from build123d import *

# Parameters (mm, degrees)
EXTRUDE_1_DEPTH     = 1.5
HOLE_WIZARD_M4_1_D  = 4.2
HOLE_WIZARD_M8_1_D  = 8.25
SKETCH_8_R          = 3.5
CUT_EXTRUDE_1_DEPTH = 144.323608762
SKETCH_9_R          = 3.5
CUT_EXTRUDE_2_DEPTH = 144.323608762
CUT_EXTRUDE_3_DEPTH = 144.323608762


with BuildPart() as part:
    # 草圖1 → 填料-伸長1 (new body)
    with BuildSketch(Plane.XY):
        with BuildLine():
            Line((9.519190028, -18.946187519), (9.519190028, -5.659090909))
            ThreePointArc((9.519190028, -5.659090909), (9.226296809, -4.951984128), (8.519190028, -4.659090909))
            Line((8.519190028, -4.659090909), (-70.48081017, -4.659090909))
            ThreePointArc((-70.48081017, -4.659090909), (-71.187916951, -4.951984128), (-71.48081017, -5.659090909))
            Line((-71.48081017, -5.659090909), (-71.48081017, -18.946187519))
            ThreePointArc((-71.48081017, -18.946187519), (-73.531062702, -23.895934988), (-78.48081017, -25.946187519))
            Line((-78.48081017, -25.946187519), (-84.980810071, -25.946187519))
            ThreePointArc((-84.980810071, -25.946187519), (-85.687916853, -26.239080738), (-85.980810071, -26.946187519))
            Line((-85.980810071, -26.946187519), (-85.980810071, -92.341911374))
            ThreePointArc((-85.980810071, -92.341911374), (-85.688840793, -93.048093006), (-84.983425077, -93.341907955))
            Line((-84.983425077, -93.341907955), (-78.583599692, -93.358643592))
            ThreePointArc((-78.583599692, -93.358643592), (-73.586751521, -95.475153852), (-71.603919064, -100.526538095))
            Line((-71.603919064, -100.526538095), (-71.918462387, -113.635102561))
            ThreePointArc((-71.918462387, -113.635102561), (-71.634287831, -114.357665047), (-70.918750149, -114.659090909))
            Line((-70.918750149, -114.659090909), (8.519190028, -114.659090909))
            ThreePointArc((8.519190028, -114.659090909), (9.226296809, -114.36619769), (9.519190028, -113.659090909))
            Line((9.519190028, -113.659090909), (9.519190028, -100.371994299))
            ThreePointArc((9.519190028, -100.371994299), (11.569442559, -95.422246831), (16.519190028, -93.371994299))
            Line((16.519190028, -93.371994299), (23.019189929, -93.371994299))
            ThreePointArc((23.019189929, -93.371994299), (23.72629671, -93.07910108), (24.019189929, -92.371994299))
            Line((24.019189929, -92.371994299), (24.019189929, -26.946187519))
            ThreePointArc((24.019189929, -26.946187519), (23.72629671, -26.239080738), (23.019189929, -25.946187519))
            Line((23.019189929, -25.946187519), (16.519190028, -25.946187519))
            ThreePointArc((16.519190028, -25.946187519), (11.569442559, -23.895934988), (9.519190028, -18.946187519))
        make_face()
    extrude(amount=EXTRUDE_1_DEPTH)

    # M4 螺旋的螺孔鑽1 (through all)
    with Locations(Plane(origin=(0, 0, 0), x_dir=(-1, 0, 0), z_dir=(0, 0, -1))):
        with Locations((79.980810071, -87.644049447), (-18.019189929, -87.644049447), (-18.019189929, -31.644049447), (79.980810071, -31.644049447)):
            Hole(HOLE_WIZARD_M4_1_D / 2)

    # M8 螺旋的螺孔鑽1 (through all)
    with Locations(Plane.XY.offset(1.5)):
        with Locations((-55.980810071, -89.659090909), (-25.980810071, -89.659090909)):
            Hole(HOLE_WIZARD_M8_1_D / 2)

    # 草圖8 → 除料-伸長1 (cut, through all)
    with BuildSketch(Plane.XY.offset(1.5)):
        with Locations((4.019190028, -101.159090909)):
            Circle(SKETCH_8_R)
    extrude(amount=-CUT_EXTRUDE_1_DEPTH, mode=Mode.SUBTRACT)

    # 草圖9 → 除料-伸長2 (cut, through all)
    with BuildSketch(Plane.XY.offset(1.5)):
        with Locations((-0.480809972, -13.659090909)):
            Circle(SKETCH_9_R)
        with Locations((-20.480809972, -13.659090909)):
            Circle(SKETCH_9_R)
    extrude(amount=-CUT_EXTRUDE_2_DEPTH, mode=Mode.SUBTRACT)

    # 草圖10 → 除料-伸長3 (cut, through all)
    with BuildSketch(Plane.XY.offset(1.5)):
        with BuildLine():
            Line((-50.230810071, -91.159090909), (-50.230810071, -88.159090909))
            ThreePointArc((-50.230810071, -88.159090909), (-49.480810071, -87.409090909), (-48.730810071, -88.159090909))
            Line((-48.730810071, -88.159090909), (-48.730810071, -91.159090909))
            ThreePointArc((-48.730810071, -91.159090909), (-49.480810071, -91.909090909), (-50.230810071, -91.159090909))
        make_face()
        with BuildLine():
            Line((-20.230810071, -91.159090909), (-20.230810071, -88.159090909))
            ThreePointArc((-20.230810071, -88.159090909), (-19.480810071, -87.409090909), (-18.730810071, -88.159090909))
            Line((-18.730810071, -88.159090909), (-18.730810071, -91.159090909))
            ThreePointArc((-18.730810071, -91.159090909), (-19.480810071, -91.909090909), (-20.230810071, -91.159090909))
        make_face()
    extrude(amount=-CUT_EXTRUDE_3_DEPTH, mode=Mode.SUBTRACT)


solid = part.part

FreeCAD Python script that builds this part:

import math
import FreeCAD as App
import Part
import Sketcher
Q = App.Units.Quantity

doc = App.newDocument("Part")
body = doc.addObject("PartDesign::Body", "Body")

sketch1 = body.newObject("Sketcher::SketchObject", "Sketch")
sketch1.AttachmentSupport = (doc.getObject("XY_Plane"), [""])
sketch1.MapMode = "FlatFace"
sketch1.addGeometry([
    Part.LineSegment(App.Vector(9.51919, -18.946188, 0), App.Vector(9.51919, -5.659091, 0)),
    Part.ArcOfCircle(Part.Circle(App.Vector(8.51919, -5.659091, 0), App.Vector(0, 0, 1), 1), math.radians(0), math.radians(90)),
    Part.LineSegment(App.Vector(8.51919, -4.659091, 0), App.Vector(-70.48081, -4.659091, 0)),
    Part.ArcOfCircle(Part.Circle(App.Vector(-70.48081, -5.659091, 0), App.Vector(0, 0, 1), 1), math.radians(90), math.radians(180)),
    Part.LineSegment(App.Vector(-71.48081, -5.659091, 0), App.Vector(-71.48081, -18.946188, 0)),
    Part.ArcOfCircle(Part.Circle(App.Vector(-78.48081, -18.946188, 0), App.Vector(0, 0, 1), 7), math.radians(-90), math.radians(0)),
    Part.LineSegment(App.Vector(-78.48081, -25.946188, 0), App.Vector(-84.98081, -25.946188, 0)),
    Part.ArcOfCircle(Part.Circle(App.Vector(-84.98081, -26.946188, 0), App.Vector(0, 0, 1), 1), math.radians(90), math.radians(180)),
    Part.LineSegment(App.Vector(-85.98081, -26.946188, 0), App.Vector(-85.98081, -92.341911, 0)),
    Part.ArcOfCircle(Part.Circle(App.Vector(-84.98081, -92.341911, 0), App.Vector(0, 0, 1), 1), math.radians(180), math.radians(269.850171)),
    Part.LineSegment(App.Vector(-84.983425, -93.341908, 0), App.Vector(-78.5836, -93.358644, 0)),
    Part.ArcOfCircle(Part.Circle(App.Vector(-78.601905, -100.35862, 0), App.Vector(0, 0, 1), 7), math.radians(-1.374563), math.radians(89.850171)),
    Part.LineSegment(App.Vector(-71.603919, -100.526538, 0), App.Vector(-71.918462, -113.635103, 0)),
    Part.ArcOfCircle(Part.Circle(App.Vector(-70.91875, -113.659091, 0), App.Vector(0, 0, 1), 1), math.radians(178.625437), math.radians(270)),
    Part.LineSegment(App.Vector(-70.91875, -114.659091, 0), App.Vector(8.51919, -114.659091, 0)),
    Part.ArcOfCircle(Part.Circle(App.Vector(8.51919, -113.659091, 0), App.Vector(0, 0, 1), 1), math.radians(-90), math.radians(0)),
    Part.LineSegment(App.Vector(9.51919, -113.659091, 0), App.Vector(9.51919, -100.371994, 0)),
    Part.ArcOfCircle(Part.Circle(App.Vector(16.51919, -100.371994, 0), App.Vector(0, 0, 1), 7), math.radians(90), math.radians(180)),
    Part.LineSegment(App.Vector(16.51919, -93.371994, 0), App.Vector(23.01919, -93.371994, 0)),
    Part.ArcOfCircle(Part.Circle(App.Vector(23.01919, -92.371994, 0), App.Vector(0, 0, 1), 1), math.radians(-90), math.radians(0)),
    Part.LineSegment(App.Vector(24.01919, -92.371994, 0), App.Vector(24.01919, -26.946188, 0)),
    Part.ArcOfCircle(Part.Circle(App.Vector(23.01919, -26.946188, 0), App.Vector(0, 0, 1), 1), math.radians(0), math.radians(90)),
    Part.LineSegment(App.Vector(23.01919, -25.946188, 0), App.Vector(16.51919, -25.946188, 0)),
    Part.ArcOfCircle(Part.Circle(App.Vector(16.51919, -18.946188, 0), App.Vector(0, 0, 1), 7), math.radians(180), math.radians(270)),
], False)
sketch1.addConstraint([
    Sketcher.Constraint("Tangent", 0, 2, 1, 1),
    Sketcher.Constraint("Tangent", 1, 2, 2, 1),
    Sketcher.Constraint("Tangent", 2, 2, 3, 1),
    Sketcher.Constraint("Tangent", 3, 2, 4, 1),
    Sketcher.Constraint("Tangent", 4, 2, 5, 2),
    Sketcher.Constraint("Tangent", 5, 1, 6, 1),
    Sketcher.Constraint("Tangent", 6, 2, 7, 1),
    Sketcher.Constraint("Tangent", 7, 2, 8, 1),
    Sketcher.Constraint("Tangent", 8, 2, 9, 1),
    Sketcher.Constraint("Tangent", 9, 2, 10, 1),
    Sketcher.Constraint("Tangent", 10, 2, 11, 2),
    Sketcher.Constraint("Tangent", 11, 1, 12, 1),
    Sketcher.Constraint("Tangent", 12, 2, 13, 1),
    Sketcher.Constraint("Tangent", 13, 2, 14, 1),
    Sketcher.Constraint("Tangent", 14, 2, 15, 1),
    Sketcher.Constraint("Tangent", 15, 2, 16, 1),
    Sketcher.Constraint("Tangent", 16, 2, 17, 2),
    Sketcher.Constraint("Tangent", 17, 1, 18, 1),
    Sketcher.Constraint("Tangent", 18, 2, 19, 1),
    Sketcher.Constraint("Tangent", 19, 2, 20, 1),
    Sketcher.Constraint("Tangent", 20, 2, 21, 1),
    Sketcher.Constraint("Tangent", 21, 2, 22, 1),
    Sketcher.Constraint("Tangent", 22, 2, 23, 2),
    Sketcher.Constraint("Tangent", 23, 1, 0, 1),
    Sketcher.Constraint("Vertical", 0),
    Sketcher.Constraint("Horizontal", 2),
    Sketcher.Constraint("Vertical", 4),
    Sketcher.Constraint("Horizontal", 6),
    Sketcher.Constraint("Vertical", 8),
    Sketcher.Constraint("Horizontal", 14),
    Sketcher.Constraint("Vertical", 16),
    Sketcher.Constraint("Horizontal", 18),
    Sketcher.Constraint("Vertical", 20),
    Sketcher.Constraint("Horizontal", 22),
    Sketcher.Constraint("Equal", 1, 3),
    Sketcher.Constraint("Equal", 3, 7),
    Sketcher.Constraint("Equal", 7, 9),
    Sketcher.Constraint("Equal", 5, 11),
    Sketcher.Constraint("Equal", 9, 13),
    Sketcher.Constraint("Equal", 13, 15),
    Sketcher.Constraint("Equal", 11, 17),
    Sketcher.Constraint("Equal", 15, 19),
    Sketcher.Constraint("Equal", 19, 21),
    Sketcher.Constraint("Equal", 17, 23),
    Sketcher.Constraint("Horizontal", 7, 3, 21, 3),
    Sketcher.Constraint("Vertical", 1, 3, 15, 3),
    Sketcher.Constraint("Equal", 6, 18),
    Sketcher.Constraint("Equal", 4, 16),
    Sketcher.Constraint("Radius", 1, Q("1 mm")),
    Sketcher.Constraint("Radius", 5, Q("7 mm")),
    Sketcher.Constraint("DistanceX", 2, 2, 2, 1, Q("79 mm")),
    Sketcher.Constraint("DistanceX", 6, 2, 6, 1, Q("6.5 mm")),
    Sketcher.Constraint("DistanceY", 13, 3, 3, 3, Q("108 mm")),
    Sketcher.Constraint("DistanceX", 14, 1, 14, 2, Q("79.43794 mm")),
    Sketcher.Constraint("DistanceX", 10, 2, -1, 1, Q("78.5836 mm")),
    Sketcher.Constraint("DistanceY", 0, 1, 0, 2, Q("13.287097 mm")),
    Sketcher.Constraint("DistanceY", 8, 2, 8, 1, Q("65.395724 mm")),
    Sketcher.Constraint("DistanceX", -1, 1, 1, 3, Q("8.51919 mm")),
    Sketcher.Constraint("DistanceY", 1, 3, -1, 1, Q("5.659091 mm")),
    Sketcher.Constraint("DistanceY", 11, 3, -1, 1, Q("100.35862 mm")),
])
pad1 = body.newObject("PartDesign::Pad", "Pad")
pad1.Profile = sketch1
pad1.Length = 1.5

sketch2 = body.newObject("Sketcher::SketchObject", "Sketch001")
sketch2.AttachmentSupport = (doc.getObject("XY_Plane"), [""])
sketch2.MapMode = "FlatFace"
sketch2.addGeometry([
    Part.Circle(App.Vector(-79.98081, -87.644049, 0), App.Vector(0, 0, 1), 2.1),
    Part.Circle(App.Vector(18.01919, -87.644049, 0), App.Vector(0, 0, 1), 2.1),
    Part.Circle(App.Vector(18.01919, -31.644049, 0), App.Vector(0, 0, 1), 2.1),
    Part.Circle(App.Vector(-79.98081, -31.644049, 0), App.Vector(0, 0, 1), 2.1),
], False)
sketch2.addConstraint([
    Sketcher.Constraint("Equal", 0, 1),
    Sketcher.Constraint("Equal", 1, 2),
    Sketcher.Constraint("Equal", 2, 3),
    Sketcher.Constraint("Horizontal", 0, 3, 1, 3),
    Sketcher.Constraint("Horizontal", 2, 3, 3, 3),
    Sketcher.Constraint("Vertical", 1, 3, 2, 3),
    Sketcher.Constraint("Vertical", 0, 3, 3, 3),
    Sketcher.Constraint("Diameter", 0, Q("4.2 mm")),
    Sketcher.Constraint("DistanceX", 0, 3, 1, 3, Q("98 mm")),
    Sketcher.Constraint("DistanceY", 1, 3, 2, 3, Q("56 mm")),
    Sketcher.Constraint("DistanceX", 0, 3, -1, 1, Q("79.98081 mm")),
    Sketcher.Constraint("DistanceY", 0, 3, -1, 1, Q("87.644049 mm")),
])
doc.recompute()
hole = body.newObject("PartDesign::Hole", "Hole")
hole.Profile = sketch2
hole.ThreadType = "None"
hole.Diameter = 4.2
hole.DepthType = "ThroughAll"
hole.Reversed = True

sketch3 = body.newObject("Sketcher::SketchObject", "Sketch002")
sketch3.AttachmentSupport = (doc.getObject("XY_Plane"), [""])
sketch3.MapMode = "FlatFace"
sketch3.AttachmentOffset = App.Placement(App.Vector(0, 0, 1.5), App.Rotation())
sketch3.addGeometry([
    Part.Circle(App.Vector(-55.98081, -89.659091, 0), App.Vector(0, 0, 1), 4.125),
    Part.Circle(App.Vector(-25.98081, -89.659091, 0), App.Vector(0, 0, 1), 4.125),
], False)
sketch3.addConstraint([
    Sketcher.Constraint("Equal", 0, 1),
    Sketcher.Constraint("Horizontal", 0, 3, 1, 3),
    Sketcher.Constraint("Diameter", 0, Q("8.25 mm")),
    Sketcher.Constraint("DistanceX", 0, 3, 1, 3, Q("30 mm")),
    Sketcher.Constraint("DistanceX", 0, 3, -1, 1, Q("55.98081 mm")),
    Sketcher.Constraint("DistanceY", 0, 3, -1, 1, Q("89.659091 mm")),
])
doc.recompute()
hole2 = body.newObject("PartDesign::Hole", "Hole001")
hole2.Profile = sketch3
hole2.ThreadType = "None"
hole2.Diameter = 8.25
hole2.DepthType = "ThroughAll"

sketch4 = body.newObject("Sketcher::SketchObject", "Sketch003")
sketch4.AttachmentSupport = (doc.getObject("XY_Plane"), [""])
sketch4.MapMode = "FlatFace"
sketch4.AttachmentOffset = App.Placement(App.Vector(0, 0, 1.5), App.Rotation())
sketch4.addGeometry(Part.Circle(App.Vector(4.01919, -101.159091, 0), App.Vector(0, 0, 1), 3.5), False)
sketch4.addConstraint([
    Sketcher.Constraint("Diameter", 0, Q("7 mm")),
    Sketcher.Constraint("DistanceX", -1, 1, 0, 3, Q("4.01919 mm")),
    Sketcher.Constraint("DistanceY", 0, 3, -1, 1, Q("101.159091 mm")),
])
pocket1 = body.newObject("PartDesign::Pocket", "Pocket")
pocket1.Profile = sketch4
pocket1.Type = "ThroughAll"

sketch5 = body.newObject("Sketcher::SketchObject", "Sketch004")
sketch5.AttachmentSupport = (doc.getObject("XY_Plane"), [""])
sketch5.MapMode = "FlatFace"
sketch5.AttachmentOffset = App.Placement(App.Vector(0, 0, 1.5), App.Rotation())
sketch5.addGeometry([
    Part.Circle(App.Vector(-0.48081, -13.659091, 0), App.Vector(0, 0, 1), 3.5),
    Part.Circle(App.Vector(-20.48081, -13.659091, 0), App.Vector(0, 0, 1), 3.5),
], False)
sketch5.addConstraint([
    Sketcher.Constraint("Equal", 0, 1),
    Sketcher.Constraint("Horizontal", 0, 3, 1, 3),
    Sketcher.Constraint("Diameter", 0, Q("7 mm")),
    Sketcher.Constraint("DistanceX", 1, 3, 0, 3, Q("20 mm")),
    Sketcher.Constraint("DistanceX", 0, 3, -1, 1, Q("0.48081 mm")),
    Sketcher.Constraint("DistanceY", 0, 3, -1, 1, Q("13.659091 mm")),
])
pocket2 = body.newObject("PartDesign::Pocket", "Pocket001")
pocket2.Profile = sketch5
pocket2.Type = "ThroughAll"

sketch6 = body.newObject("Sketcher::SketchObject", "Sketch005")
sketch6.AttachmentSupport = (doc.getObject("XY_Plane"), [""])
sketch6.MapMode = "FlatFace"
sketch6.AttachmentOffset = App.Placement(App.Vector(0, 0, 1.5), App.Rotation())
sketch6.addGeometry([
    Part.LineSegment(App.Vector(-50.23081, -88.159091, 0), App.Vector(-50.23081, -91.159091, 0)),
    Part.ArcOfCircle(Part.Circle(App.Vector(-49.48081, -91.159091, 0), App.Vector(0, 0, 1), 0.75), math.radians(180), math.radians(360)),
    Part.LineSegment(App.Vector(-48.73081, -91.159091, 0), App.Vector(-48.73081, -88.159091, 0)),
    Part.ArcOfCircle(Part.Circle(App.Vector(-49.48081, -88.159091, 0), App.Vector(0, 0, 1), 0.75), math.radians(0), math.radians(180)),
    Part.LineSegment(App.Vector(-20.23081, -88.159091, 0), App.Vector(-20.23081, -91.159091, 0)),
    Part.ArcOfCircle(Part.Circle(App.Vector(-19.48081, -91.159091, 0), App.Vector(0, 0, 1), 0.75), math.radians(180), math.radians(360)),
    Part.LineSegment(App.Vector(-18.73081, -91.159091, 0), App.Vector(-18.73081, -88.159091, 0)),
    Part.ArcOfCircle(Part.Circle(App.Vector(-19.48081, -88.159091, 0), App.Vector(0, 0, 1), 0.75), math.radians(0), math.radians(180)),
], False)
sketch6.addConstraint([
    Sketcher.Constraint("Tangent", 0, 2, 1, 1),
    Sketcher.Constraint("Tangent", 1, 2, 2, 1),
    Sketcher.Constraint("Tangent", 2, 2, 3, 1),
    Sketcher.Constraint("Tangent", 3, 2, 0, 1),
    Sketcher.Constraint("Tangent", 4, 2, 5, 1),
    Sketcher.Constraint("Tangent", 5, 2, 6, 1),
    Sketcher.Constraint("Tangent", 6, 2, 7, 1),
    Sketcher.Constraint("Tangent", 7, 2, 4, 1),
    Sketcher.Constraint("Vertical", 0),
    Sketcher.Constraint("Vertical", 2),
    Sketcher.Constraint("Vertical", 4),
    Sketcher.Constraint("Vertical", 6),
    Sketcher.Constraint("Equal", 3, 5),
    Sketcher.Constraint("Horizontal", 1, 3, 5, 3),
    Sketcher.Constraint("Horizontal", 3, 3, 7, 3),
    Sketcher.Constraint("DistanceY", 0, 2, 0, 1, Q("3 mm")),
    Sketcher.Constraint("Radius", 1, Q("0.75 mm")),
    Sketcher.Constraint("DistanceX", 1, 3, 5, 3, Q("30 mm")),
    Sketcher.Constraint("DistanceX", 1, 3, -1, 1, Q("49.48081 mm")),
    Sketcher.Constraint("DistanceY", 1, 3, -1, 1, Q("91.159091 mm")),
])
pocket3 = body.newObject("PartDesign::Pocket", "Pocket002")
pocket3.Profile = sketch6
pocket3.Type = "ThroughAll"

doc.recompute()
